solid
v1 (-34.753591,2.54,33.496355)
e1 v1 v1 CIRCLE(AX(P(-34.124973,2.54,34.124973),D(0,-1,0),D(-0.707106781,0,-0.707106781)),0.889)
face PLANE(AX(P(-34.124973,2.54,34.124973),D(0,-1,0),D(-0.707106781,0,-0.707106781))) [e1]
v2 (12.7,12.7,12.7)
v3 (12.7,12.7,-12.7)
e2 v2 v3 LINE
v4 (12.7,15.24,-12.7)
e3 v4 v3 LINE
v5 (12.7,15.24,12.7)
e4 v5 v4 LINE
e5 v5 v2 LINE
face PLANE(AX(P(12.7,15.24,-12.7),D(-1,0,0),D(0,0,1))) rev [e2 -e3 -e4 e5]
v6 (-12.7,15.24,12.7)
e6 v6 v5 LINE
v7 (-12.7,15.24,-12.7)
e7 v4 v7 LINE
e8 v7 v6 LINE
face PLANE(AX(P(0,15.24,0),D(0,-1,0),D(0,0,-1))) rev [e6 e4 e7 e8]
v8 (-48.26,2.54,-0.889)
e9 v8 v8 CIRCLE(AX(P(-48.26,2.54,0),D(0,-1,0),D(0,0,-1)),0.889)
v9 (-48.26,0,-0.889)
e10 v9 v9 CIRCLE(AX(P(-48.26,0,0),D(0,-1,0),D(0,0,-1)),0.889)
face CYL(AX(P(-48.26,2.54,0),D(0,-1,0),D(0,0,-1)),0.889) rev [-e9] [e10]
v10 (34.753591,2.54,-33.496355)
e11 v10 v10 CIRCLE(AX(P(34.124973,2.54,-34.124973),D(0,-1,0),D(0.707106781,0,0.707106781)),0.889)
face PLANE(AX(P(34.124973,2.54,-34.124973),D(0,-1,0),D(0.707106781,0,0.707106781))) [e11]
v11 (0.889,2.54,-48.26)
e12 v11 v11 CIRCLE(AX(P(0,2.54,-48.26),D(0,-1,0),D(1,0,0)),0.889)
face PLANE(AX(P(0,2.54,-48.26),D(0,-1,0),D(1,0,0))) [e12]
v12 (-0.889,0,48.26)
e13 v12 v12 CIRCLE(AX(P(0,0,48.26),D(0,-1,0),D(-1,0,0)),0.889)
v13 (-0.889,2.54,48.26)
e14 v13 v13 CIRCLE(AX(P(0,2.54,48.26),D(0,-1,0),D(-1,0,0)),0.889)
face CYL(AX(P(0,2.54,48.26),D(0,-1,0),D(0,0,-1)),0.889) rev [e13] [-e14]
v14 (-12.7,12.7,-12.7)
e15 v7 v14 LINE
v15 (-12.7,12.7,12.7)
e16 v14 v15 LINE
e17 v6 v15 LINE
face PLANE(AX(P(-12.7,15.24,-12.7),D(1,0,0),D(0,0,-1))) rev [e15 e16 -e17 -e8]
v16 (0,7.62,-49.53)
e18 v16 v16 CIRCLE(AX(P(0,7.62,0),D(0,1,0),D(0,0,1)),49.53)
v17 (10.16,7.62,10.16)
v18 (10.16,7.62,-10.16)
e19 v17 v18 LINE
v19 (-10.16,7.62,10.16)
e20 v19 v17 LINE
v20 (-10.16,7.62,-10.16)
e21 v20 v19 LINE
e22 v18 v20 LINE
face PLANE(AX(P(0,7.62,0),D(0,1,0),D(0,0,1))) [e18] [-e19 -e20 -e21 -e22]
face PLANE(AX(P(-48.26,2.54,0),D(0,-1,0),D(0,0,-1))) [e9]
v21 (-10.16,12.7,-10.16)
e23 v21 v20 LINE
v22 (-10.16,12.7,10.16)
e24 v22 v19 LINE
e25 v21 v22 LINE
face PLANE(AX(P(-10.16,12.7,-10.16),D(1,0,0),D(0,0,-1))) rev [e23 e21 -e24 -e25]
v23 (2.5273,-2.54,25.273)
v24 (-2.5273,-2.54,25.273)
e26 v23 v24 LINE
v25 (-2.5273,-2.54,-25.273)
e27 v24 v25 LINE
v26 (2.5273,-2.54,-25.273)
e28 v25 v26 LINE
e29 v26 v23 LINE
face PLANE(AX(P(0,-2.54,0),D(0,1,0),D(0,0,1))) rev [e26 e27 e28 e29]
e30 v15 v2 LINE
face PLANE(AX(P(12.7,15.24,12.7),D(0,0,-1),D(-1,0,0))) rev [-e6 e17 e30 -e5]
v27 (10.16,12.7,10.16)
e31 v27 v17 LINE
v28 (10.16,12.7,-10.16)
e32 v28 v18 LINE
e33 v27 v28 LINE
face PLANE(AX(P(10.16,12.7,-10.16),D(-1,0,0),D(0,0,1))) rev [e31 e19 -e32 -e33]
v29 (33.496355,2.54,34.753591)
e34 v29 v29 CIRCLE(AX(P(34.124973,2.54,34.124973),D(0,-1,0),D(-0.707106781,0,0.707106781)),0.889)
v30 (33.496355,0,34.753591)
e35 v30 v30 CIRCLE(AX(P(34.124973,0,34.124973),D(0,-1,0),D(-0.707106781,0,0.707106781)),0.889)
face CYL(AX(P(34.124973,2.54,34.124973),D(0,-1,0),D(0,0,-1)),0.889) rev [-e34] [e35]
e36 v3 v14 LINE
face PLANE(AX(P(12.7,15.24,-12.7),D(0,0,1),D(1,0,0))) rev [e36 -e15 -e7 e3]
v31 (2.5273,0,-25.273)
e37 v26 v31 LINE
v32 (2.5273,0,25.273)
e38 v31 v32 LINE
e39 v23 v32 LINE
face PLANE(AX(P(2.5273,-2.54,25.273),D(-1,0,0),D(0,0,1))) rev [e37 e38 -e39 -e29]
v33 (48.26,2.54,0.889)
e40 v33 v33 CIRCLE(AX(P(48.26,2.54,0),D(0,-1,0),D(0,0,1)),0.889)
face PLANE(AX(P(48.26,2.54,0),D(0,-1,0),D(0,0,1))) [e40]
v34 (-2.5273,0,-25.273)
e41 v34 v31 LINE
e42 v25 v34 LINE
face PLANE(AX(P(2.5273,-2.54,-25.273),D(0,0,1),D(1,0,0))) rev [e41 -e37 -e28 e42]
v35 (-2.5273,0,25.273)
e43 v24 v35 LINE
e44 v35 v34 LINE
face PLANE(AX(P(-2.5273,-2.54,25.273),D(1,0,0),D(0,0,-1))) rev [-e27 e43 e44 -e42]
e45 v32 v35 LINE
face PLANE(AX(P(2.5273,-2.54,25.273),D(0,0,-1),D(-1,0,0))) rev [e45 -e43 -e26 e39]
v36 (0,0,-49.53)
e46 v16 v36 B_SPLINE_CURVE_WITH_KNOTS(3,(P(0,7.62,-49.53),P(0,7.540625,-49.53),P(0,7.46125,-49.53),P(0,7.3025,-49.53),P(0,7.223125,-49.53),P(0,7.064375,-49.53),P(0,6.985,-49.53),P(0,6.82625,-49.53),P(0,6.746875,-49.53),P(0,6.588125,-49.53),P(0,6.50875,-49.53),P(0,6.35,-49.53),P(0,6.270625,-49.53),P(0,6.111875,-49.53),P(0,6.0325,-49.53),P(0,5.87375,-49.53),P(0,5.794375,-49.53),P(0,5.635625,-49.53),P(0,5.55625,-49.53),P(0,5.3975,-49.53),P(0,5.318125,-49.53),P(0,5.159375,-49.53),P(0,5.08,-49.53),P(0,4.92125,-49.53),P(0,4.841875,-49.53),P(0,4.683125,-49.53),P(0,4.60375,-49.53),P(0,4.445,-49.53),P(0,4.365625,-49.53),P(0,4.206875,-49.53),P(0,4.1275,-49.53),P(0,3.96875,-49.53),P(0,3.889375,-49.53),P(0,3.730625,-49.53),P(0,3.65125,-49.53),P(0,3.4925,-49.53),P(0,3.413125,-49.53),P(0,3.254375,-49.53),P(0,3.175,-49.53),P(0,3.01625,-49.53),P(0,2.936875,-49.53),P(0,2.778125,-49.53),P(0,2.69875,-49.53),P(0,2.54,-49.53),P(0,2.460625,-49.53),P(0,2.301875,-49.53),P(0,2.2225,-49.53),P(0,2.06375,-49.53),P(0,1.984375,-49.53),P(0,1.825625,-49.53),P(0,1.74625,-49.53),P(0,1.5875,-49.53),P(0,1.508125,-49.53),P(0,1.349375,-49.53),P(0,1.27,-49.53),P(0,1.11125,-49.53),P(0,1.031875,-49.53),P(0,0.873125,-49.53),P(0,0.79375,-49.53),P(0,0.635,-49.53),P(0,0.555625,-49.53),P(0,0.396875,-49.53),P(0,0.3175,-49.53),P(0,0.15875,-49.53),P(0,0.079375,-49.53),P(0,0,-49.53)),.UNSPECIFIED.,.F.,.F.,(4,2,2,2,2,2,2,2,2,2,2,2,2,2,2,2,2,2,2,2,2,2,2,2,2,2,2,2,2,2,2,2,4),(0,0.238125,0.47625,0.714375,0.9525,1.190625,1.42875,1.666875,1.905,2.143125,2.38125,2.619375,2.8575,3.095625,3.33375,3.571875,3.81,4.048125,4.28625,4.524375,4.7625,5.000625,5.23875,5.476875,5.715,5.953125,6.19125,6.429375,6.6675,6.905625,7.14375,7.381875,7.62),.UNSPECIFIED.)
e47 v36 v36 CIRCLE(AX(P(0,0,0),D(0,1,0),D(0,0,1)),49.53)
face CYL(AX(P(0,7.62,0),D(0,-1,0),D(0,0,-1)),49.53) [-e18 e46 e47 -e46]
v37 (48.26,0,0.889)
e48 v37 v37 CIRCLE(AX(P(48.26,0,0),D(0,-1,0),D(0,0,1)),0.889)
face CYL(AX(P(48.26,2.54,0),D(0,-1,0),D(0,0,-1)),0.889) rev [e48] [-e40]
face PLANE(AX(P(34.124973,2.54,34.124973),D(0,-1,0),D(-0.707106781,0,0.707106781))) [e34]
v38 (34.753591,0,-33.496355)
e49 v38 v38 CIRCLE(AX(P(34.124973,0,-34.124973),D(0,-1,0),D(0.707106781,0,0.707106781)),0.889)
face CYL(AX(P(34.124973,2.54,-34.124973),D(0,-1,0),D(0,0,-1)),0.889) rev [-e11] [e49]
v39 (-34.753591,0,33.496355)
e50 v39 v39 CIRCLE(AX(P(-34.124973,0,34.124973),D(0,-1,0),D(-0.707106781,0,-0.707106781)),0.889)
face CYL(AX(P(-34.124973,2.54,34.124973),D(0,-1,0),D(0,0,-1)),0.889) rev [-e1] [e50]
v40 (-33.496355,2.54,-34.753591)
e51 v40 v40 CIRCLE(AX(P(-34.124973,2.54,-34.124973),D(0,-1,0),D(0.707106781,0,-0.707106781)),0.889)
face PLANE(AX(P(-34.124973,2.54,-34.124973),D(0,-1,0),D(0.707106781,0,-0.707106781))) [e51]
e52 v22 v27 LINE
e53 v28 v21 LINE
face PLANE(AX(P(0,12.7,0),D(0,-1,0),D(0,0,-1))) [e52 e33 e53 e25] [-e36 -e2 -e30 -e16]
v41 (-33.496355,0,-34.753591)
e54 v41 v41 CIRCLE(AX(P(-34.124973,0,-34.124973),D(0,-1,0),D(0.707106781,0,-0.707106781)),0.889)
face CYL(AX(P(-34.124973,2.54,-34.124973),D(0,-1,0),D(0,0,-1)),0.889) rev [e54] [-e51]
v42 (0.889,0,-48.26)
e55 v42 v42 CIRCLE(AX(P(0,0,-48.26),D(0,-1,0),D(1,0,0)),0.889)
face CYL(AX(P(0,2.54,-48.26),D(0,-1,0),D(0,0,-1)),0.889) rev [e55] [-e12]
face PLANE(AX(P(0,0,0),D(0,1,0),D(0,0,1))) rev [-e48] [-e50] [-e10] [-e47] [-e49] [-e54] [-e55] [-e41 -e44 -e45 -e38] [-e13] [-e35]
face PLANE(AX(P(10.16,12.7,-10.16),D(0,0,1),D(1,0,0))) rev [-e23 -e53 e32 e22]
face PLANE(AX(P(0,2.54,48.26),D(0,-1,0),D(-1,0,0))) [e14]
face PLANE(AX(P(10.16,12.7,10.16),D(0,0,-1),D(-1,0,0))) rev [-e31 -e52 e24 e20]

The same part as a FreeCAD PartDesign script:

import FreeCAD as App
import Part
import Sketcher
from FreeCAD import Vector
Q = App.Units.Quantity

doc = App.newDocument("Part")
body = doc.addObject("PartDesign::Body", "Body")

sketch1 = body.newObject("Sketcher::SketchObject", "Sketch")
sketch1.AttachmentSupport = (doc.getObject("XZ_Plane"), [""])
sketch1.MapMode = "FlatFace"
sketch1.addGeometry(Part.Circle(Vector(0, 0, 0), Vector(0, 0, 1), 50), False)
sketch1.addConstraint([
    Sketcher.Constraint("Coincident", 0, 3, -1, 1),
    Sketcher.Constraint("Diameter", 0, Q("3.9 in")),
])
pad1 = body.newObject("PartDesign::Pad", "Pad")
pad1.Profile = sketch1
pad1.Length = Q("0.3 in")
pad1.Reversed = True

sketch2 = body.newObject("Sketcher::SketchObject", "Sketch001")
sketch2.AttachmentSupport = (doc.getObject("XZ_Plane"), [""])
sketch2.MapMode = "FlatFace"
sketch2.addGeometry(Part.Circle(Vector(-48.3, 0, 0), Vector(0, 0, 1), 0.9), False)
sketch2.addConstraint([
    Sketcher.Constraint("PointOnObject", 0, 3, -1),
    Sketcher.Constraint("Diameter", 0, Q("0.07 in")),
    Sketcher.Constraint("DistanceX", 0, 3, -1, 1, Q("1.9 in")),
])
pocket1 = body.newObject("PartDesign::Pocket", "Pocket")
pocket1.Profile = sketch2
pocket1.Length = Q("0.1 in")
doc.recompute()

polarpattern = body.newObject("PartDesign::PolarPattern", "PolarPattern")
polarpattern.Originals = [pocket1]
polarpattern.Axis = (doc.getObject("Y_Axis"), [""])
polarpattern.Angle = 360
polarpattern.Occurrences = 8
body.Tip = polarpattern

sketch3 = body.newObject("Sketcher::SketchObject", "Sketch002")
sketch3.AttachmentSupport = (doc.getObject("XZ_Plane"), [""])
sketch3.MapMode = "FlatFace"
sketch3.addGeometry([
    Part.LineSegment(Vector(-3, 25, 0), Vector(-3, -25, 0)),
    Part.LineSegment(Vector(-3, -25, 0), Vector(3, -25, 0)),
    Part.LineSegment(Vector(3, -25, 0), Vector(3, 25, 0)),
    Part.LineSegment(Vector(3, 25, 0), Vector(-3, 25, 0)),
], False)
sketch3.addConstraint([
    Sketcher.Constraint("Coincident", 0, 2, 1, 1),
    Sketcher.Constraint("Coincident", 1, 2, 2, 1),
    Sketcher.Constraint("Coincident", 2, 2, 3, 1),
    Sketcher.Constraint("Coincident", 3, 2, 0, 1),
    Sketcher.Constraint("Vertical", 0),
    Sketcher.Constraint("Horizontal", 1),
    Sketcher.Constraint("Vertical", 2),
    Sketcher.Constraint("Horizontal", 3),
    Sketcher.Constraint("Symmetric", 0, 2, 2, 2, -1, 1),
    Sketcher.Constraint("DistanceY", 0, 2, 0, 1, Q("1.99 in")),
    Sketcher.Constraint("DistanceX", 1, 1, 1, 2, Q("0.199 in")),
])
pad2 = body.newObject("PartDesign::Pad", "Pad001")
pad2.Profile = sketch3
pad2.Length = Q("0.1 in")

sketch4 = body.newObject("Sketcher::SketchObject", "Sketch003")
sketch4.AttachmentSupport = (doc.getObject("XZ_Plane"), [""])
sketch4.MapMode = "FlatFace"
sketch4.AttachmentOffset = App.Placement(Vector(0, 0, -0.3 * 25.4), App.Rotation())
sketch4.addGeometry([
    Part.LineSegment(Vector(-10, -10, 0), Vector(-10, 10, 0)),
    Part.LineSegment(Vector(-10, 10, 0), Vector(10, 10, 0)),
    Part.LineSegment(Vector(10, 10, 0), Vector(10, -10, 0)),
    Part.LineSegment(Vector(10, -10, 0), Vector(-10, -10, 0)),
], False)
sketch4.addConstraint([
    Sketcher.Constraint("Coincident", 0, 2, 1, 1),
    Sketcher.Constraint("Coincident", 1, 2, 2, 1),
    Sketcher.Constraint("Coincident", 2, 2, 3, 1),
    Sketcher.Constraint("Coincident", 3, 2, 0, 1),
    Sketcher.Constraint("Vertical", 0),
    Sketcher.Constraint("Horizontal", 1),
    Sketcher.Constraint("Vertical", 2),
    Sketcher.Constraint("Horizontal", 3),
    Sketcher.Constraint("Symmetric", 0, 2, 2, 2, -1, 1),
    Sketcher.Constraint("Equal", 3, 0),
    Sketcher.Constraint("DistanceX", 1, 1, 1, 2, Q("0.8 in")),
])
pad3 = body.newObject("PartDesign::Pad", "Pad002")
pad3.Profile = sketch4
pad3.Length = Q("0.2 in")
pad3.Reversed = True

sketch5 = body.newObject("Sketcher::SketchObject", "Sketch004")
sketch5.AttachmentSupport = (doc.getObject("XZ_Plane"), [""])
sketch5.MapMode = "FlatFace"
sketch5.AttachmentOffset = App.Placement(Vector(0, 0, -0.5 * 25.4), App.Rotation())
sketch5.addGeometry([
    Part.LineSegment(Vector(-13, -13, 0), Vector(-13, 13, 0)),
    Part.LineSegment(Vector(-13, 13, 0), Vector(13, 13, 0)),
    Part.LineSegment(Vector(13, 13, 0), Vector(13, -13, 0)),
    Part.LineSegment(Vector(13, -13, 0), Vector(-13, -13, 0)),
], False)
sketch5.addConstraint([
    Sketcher.Constraint("Coincident", 0, 2, 1, 1),
    Sketcher.Constraint("Coincident", 1, 2, 2, 1),
    Sketcher.Constraint("Coincident", 2, 2, 3, 1),
    Sketcher.Constraint("Coincident", 3, 2, 0, 1),
    Sketcher.Constraint("Vertical", 0),
    Sketcher.Constraint("Horizontal", 1),
    Sketcher.Constraint("Vertical", 2),
    Sketcher.Constraint("Horizontal", 3),
    Sketcher.Constraint("Symmetric", 0, 2, 2, 2, -1, 1),
    Sketcher.Constraint("Equal", 3, 0),
    Sketcher.Constraint("DistanceX", 1, 1, 1, 2, Q("1 in")),
])
pad4 = body.newObject("PartDesign::Pad", "Pad003")
pad4.Profile = sketch5
pad4.Length = Q("0.1 in")
pad4.Reversed = True

doc.recompute()
